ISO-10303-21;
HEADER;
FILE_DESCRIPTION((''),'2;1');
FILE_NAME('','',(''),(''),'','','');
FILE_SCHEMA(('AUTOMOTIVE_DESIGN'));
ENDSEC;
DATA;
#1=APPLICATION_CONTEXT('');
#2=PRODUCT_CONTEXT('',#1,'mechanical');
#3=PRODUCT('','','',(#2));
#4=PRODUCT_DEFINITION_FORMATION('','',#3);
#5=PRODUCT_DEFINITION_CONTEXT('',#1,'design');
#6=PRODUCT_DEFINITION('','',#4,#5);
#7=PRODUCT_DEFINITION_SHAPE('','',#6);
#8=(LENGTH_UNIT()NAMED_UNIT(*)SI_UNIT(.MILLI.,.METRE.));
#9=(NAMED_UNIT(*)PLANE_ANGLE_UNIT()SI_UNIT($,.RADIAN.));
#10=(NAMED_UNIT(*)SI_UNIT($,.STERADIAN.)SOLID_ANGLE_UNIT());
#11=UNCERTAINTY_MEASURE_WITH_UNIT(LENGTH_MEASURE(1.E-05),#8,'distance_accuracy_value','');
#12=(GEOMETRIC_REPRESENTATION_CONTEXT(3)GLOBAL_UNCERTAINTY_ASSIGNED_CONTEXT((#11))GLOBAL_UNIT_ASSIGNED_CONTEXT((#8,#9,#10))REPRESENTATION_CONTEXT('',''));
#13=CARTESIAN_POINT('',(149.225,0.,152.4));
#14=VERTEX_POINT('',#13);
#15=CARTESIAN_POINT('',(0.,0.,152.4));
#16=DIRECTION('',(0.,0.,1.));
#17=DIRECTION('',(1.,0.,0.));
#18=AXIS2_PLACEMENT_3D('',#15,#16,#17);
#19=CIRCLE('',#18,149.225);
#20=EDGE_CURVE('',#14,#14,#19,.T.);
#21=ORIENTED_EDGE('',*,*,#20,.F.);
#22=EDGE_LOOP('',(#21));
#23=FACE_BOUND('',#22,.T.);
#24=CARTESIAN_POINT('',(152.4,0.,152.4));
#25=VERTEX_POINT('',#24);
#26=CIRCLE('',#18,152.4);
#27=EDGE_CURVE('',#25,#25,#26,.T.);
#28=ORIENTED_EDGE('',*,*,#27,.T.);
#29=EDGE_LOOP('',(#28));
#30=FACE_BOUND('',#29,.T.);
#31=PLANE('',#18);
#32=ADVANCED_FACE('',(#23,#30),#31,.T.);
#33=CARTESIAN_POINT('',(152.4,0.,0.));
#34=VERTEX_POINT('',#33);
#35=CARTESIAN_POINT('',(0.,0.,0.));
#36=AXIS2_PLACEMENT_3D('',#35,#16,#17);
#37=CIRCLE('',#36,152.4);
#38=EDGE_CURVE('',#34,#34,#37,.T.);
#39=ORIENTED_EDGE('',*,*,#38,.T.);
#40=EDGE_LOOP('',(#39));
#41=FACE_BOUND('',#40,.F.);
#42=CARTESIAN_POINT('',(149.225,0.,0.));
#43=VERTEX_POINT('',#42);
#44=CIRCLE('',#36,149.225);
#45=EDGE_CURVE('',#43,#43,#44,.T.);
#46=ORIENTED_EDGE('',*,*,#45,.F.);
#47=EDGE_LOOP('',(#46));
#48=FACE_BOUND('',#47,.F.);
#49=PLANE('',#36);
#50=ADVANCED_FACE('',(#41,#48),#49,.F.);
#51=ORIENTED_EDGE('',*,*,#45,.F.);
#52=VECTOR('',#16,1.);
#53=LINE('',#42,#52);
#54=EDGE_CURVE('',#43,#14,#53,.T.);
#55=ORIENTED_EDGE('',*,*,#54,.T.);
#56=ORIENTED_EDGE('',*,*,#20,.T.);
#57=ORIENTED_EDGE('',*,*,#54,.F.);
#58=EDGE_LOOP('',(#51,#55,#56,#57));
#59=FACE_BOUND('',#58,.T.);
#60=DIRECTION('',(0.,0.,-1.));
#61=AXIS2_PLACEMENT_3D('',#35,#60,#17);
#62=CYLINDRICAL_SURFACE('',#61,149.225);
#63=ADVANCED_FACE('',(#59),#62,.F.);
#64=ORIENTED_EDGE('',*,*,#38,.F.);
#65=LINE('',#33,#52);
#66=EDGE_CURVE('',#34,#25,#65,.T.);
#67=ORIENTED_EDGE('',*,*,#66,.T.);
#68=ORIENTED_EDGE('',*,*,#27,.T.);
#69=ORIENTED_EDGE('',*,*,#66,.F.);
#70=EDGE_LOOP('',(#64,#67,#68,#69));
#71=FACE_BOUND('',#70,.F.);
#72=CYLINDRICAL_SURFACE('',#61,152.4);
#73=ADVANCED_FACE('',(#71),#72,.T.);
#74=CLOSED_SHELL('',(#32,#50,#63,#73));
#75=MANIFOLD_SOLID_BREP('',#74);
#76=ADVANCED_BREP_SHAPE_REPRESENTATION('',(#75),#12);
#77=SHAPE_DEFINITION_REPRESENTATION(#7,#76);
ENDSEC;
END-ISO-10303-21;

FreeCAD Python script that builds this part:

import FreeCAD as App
import Part
import Sketcher
Q = App.Units.Quantity

doc = App.newDocument("Part")
params = doc.addObject("Spreadsheet::Sheet", "Params")
for row, (alias, value) in enumerate([
    ("sketch1_diameter", "12 in"),
    ("sketch1_diameter2", "11.75 in"),
    ("pad1_length", "6 in"),
], start=1):
    params.set(f"A{row}", alias)
    params.set(f"B{row}", "=" + value)
    params.setAlias(f"B{row}", alias)

body = doc.addObject("PartDesign::Body", "Body")

# Sketch on XY plane
sketch1 = doc.addObject("Sketcher::SketchObject", "Sketch")
body.addObject(sketch1)
sketch1.AttachmentSupport = (doc.XY_Plane, [""])
sketch1.MapMode = "FlatFace"
sketch1.addGeometry(Part.Circle(App.Vector(0, 0, 0), App.Vector(0, 0, 1), 152), False)
sketch1.addGeometry(Part.Circle(App.Vector(0, 0, 0), App.Vector(0, 0, 1), 149), False)
sketch1.addConstraint(Sketcher.Constraint("Coincident", 0, 3, -1, 1))
sketch1.addConstraint(Sketcher.Constraint("Coincident", 1, 3, -1, 1))
sketch1.addConstraint(Sketcher.Constraint("Diameter", 0, Q("12 in")))
sketch1.addConstraint(Sketcher.Constraint("Diameter", 1, Q("11.75 in")))
sketch1.setExpression("Constraints[2]", "Params.sketch1_diameter")
sketch1.setExpression("Constraints[3]", "Params.sketch1_diameter2")
pad1 = doc.addObject("PartDesign::Pad", "Pad")
body.addObject(pad1)
pad1.Profile = sketch1
pad1.setExpression("Length", "Params.pad1_length")

doc.recompute()
